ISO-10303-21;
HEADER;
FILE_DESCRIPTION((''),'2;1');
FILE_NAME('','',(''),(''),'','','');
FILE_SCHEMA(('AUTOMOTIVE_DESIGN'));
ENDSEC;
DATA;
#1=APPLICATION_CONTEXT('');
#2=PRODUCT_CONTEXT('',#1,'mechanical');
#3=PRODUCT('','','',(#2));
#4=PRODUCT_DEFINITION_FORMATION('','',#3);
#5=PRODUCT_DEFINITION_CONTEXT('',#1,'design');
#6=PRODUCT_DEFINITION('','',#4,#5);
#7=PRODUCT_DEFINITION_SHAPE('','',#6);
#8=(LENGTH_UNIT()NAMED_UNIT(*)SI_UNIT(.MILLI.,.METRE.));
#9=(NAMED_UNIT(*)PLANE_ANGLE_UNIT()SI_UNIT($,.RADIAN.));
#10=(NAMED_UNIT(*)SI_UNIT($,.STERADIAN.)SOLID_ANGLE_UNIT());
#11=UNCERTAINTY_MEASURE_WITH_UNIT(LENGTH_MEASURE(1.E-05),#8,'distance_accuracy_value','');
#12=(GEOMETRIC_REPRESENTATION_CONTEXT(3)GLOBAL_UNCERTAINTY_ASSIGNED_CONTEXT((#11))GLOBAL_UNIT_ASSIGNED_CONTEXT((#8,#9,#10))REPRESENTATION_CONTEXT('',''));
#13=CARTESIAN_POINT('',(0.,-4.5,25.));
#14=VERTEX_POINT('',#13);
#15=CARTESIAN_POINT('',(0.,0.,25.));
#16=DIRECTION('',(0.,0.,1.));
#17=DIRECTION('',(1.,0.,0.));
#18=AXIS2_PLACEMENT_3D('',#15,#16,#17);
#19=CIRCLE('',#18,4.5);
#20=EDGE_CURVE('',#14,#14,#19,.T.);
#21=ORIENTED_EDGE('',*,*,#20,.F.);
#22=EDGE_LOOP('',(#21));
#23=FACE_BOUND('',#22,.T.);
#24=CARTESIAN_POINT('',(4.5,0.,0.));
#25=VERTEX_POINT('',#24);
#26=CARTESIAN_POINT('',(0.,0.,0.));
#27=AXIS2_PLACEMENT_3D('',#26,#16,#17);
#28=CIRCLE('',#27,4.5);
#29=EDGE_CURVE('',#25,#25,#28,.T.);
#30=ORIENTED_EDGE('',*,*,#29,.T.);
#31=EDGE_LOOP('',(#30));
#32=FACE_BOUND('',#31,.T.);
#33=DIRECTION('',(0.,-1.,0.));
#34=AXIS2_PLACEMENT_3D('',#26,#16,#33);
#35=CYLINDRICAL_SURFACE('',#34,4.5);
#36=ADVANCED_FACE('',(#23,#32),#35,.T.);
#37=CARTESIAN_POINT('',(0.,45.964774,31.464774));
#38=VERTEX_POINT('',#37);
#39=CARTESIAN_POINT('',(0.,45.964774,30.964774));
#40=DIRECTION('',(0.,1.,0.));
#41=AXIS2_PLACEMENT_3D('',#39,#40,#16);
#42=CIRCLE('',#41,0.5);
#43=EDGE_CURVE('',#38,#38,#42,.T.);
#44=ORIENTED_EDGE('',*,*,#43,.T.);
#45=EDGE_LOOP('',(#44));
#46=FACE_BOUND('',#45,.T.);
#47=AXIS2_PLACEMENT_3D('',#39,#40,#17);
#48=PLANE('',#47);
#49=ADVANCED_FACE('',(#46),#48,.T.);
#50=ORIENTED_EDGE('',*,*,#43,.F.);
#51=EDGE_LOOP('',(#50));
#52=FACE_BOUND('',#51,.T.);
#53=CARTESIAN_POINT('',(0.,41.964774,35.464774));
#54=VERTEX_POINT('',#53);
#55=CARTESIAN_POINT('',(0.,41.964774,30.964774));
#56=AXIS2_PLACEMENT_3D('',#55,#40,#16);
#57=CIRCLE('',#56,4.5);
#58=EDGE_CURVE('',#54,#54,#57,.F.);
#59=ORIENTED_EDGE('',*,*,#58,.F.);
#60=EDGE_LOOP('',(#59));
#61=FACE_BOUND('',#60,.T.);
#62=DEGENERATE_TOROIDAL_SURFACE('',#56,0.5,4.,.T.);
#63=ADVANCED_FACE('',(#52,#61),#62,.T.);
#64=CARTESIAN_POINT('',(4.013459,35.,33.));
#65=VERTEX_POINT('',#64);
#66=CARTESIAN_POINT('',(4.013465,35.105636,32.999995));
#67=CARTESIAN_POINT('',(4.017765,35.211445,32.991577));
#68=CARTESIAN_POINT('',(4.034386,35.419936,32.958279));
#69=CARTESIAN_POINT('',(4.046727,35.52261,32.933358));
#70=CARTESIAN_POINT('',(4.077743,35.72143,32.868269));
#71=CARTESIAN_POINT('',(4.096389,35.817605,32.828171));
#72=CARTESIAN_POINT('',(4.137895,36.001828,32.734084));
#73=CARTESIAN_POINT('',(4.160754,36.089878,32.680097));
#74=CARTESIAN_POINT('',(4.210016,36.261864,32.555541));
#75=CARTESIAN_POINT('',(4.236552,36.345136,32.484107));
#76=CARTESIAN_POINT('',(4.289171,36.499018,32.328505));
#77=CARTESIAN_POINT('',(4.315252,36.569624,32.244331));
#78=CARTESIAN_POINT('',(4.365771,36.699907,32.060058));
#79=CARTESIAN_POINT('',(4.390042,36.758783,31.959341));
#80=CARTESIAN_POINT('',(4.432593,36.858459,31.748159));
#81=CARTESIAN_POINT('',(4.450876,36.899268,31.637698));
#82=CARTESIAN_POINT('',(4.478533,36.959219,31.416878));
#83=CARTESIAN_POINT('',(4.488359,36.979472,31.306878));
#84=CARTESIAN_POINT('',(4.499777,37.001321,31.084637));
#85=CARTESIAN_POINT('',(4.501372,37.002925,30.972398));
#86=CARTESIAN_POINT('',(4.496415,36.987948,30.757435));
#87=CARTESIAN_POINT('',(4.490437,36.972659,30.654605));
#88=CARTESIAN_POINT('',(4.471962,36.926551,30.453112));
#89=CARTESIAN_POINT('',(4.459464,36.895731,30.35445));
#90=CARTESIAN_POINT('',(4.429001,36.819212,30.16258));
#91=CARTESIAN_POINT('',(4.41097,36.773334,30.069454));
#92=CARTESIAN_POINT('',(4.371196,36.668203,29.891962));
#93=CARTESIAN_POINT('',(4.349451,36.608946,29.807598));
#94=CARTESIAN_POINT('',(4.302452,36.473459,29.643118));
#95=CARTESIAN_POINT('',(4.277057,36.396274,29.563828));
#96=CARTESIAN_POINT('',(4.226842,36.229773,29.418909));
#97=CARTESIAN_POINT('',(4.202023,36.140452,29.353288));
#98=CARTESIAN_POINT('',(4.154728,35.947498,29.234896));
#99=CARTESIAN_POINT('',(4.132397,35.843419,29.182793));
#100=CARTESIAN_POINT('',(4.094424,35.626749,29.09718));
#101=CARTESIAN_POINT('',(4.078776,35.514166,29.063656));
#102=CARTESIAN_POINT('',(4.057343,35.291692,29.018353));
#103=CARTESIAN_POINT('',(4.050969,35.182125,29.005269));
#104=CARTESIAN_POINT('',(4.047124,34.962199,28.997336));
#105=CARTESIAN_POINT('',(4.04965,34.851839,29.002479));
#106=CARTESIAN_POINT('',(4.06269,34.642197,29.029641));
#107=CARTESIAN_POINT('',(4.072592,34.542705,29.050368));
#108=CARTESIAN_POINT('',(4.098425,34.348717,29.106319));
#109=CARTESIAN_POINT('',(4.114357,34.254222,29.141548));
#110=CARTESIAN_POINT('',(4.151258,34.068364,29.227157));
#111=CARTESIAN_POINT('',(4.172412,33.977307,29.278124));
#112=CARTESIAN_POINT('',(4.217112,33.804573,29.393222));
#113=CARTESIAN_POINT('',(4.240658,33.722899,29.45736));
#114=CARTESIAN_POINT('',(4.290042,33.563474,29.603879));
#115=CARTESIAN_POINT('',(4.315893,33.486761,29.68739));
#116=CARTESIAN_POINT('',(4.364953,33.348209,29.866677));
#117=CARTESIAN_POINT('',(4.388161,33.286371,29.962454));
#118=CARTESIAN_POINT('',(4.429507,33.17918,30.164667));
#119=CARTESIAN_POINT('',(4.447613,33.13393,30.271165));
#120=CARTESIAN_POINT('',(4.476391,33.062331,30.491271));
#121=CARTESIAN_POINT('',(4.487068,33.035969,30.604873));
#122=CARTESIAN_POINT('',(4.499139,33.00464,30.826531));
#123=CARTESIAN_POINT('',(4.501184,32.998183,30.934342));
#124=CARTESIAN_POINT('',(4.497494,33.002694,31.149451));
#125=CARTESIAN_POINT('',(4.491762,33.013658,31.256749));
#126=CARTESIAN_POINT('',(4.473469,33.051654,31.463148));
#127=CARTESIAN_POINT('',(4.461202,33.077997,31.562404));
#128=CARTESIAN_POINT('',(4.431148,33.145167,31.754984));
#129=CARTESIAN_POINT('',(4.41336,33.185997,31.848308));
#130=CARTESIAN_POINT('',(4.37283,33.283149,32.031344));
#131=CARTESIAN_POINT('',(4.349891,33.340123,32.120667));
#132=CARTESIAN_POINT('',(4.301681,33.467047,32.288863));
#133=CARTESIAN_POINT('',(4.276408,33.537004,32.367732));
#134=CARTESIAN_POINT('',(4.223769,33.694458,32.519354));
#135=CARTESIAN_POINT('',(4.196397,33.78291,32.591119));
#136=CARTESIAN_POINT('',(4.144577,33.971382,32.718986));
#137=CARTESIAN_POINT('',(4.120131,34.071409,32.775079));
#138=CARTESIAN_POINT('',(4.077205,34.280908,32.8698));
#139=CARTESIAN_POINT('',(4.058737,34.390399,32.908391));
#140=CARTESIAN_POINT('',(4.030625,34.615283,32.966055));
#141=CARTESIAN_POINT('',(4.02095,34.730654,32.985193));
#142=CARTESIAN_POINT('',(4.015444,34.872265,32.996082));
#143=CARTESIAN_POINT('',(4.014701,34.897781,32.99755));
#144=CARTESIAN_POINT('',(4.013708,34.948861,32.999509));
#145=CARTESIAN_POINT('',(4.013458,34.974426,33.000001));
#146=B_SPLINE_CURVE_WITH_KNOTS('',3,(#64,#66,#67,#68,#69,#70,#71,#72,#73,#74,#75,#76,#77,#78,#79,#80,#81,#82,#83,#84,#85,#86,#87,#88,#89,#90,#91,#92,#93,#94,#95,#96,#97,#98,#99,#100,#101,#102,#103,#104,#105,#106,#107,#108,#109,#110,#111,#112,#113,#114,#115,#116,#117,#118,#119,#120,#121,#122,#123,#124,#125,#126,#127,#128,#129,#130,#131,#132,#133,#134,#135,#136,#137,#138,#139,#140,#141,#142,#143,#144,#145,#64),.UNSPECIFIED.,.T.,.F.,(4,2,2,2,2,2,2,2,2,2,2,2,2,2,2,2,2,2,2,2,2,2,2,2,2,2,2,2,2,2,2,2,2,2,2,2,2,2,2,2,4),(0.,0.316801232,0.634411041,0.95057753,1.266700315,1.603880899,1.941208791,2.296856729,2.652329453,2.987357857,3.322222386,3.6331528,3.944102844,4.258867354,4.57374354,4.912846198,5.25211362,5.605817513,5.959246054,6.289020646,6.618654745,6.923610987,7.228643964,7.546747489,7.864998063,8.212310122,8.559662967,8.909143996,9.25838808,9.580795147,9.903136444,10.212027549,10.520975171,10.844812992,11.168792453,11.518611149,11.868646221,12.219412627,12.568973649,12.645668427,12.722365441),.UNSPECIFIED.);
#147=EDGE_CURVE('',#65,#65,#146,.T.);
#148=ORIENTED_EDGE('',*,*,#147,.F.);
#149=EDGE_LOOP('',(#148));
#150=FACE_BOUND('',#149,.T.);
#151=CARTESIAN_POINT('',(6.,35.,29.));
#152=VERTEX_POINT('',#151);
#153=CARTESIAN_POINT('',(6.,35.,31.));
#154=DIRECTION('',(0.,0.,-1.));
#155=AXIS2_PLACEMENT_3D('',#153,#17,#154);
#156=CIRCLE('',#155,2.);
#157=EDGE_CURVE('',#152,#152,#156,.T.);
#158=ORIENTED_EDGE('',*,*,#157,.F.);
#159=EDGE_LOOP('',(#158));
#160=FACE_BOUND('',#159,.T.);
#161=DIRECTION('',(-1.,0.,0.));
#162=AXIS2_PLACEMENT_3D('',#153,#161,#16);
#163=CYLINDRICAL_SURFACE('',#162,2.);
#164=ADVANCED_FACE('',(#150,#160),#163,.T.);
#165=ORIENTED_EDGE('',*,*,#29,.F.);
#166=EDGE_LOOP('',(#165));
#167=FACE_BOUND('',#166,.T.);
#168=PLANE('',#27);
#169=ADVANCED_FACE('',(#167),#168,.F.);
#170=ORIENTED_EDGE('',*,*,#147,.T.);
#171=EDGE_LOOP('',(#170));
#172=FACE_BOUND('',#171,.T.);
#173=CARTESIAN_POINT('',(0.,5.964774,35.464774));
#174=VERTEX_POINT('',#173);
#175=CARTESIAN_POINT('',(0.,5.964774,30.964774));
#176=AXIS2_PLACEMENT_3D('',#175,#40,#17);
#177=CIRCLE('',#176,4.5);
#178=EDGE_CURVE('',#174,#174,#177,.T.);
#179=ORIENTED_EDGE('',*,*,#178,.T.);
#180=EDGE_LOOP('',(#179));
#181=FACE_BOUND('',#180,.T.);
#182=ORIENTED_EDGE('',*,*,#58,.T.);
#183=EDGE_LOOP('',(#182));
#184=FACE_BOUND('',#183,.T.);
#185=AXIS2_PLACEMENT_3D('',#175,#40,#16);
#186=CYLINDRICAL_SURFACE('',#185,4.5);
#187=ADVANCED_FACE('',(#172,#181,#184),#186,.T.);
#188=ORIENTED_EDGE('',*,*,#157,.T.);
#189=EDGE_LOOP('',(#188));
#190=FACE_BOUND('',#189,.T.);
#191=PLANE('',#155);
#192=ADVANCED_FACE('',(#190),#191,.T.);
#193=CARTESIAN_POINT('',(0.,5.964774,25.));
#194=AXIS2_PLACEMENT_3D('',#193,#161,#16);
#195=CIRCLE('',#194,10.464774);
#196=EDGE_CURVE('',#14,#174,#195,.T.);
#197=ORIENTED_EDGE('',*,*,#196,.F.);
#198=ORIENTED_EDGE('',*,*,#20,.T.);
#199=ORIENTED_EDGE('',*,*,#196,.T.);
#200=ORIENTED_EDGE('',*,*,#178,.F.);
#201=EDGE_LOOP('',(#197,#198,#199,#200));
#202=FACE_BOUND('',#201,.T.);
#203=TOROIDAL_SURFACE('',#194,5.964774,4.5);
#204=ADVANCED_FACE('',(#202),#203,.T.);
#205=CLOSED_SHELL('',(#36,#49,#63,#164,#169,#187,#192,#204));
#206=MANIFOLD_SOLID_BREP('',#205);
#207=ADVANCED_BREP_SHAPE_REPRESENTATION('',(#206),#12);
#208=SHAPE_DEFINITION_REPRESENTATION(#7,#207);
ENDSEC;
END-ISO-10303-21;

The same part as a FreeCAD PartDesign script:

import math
import FreeCAD as App
import Part
import Sketcher

V = App.Vector
Q = App.Units.Quantity


def edges_at(feature, points):
    """Names of the edges that pass closest to the given points."""
    edges = feature.Shape.Edges
    near = lambda p: min(range(len(edges)), key=lambda i: edges[i].distToShape(Part.Vertex(*p))[0])
    return sorted({f"Edge{near(p) + 1}" for p in points})

doc = App.newDocument("Part")
body = doc.addObject("PartDesign::Body", "Body")

# Sketch on XY plane
sketch1 = body.newObject("Sketcher::SketchObject", "Sketch")
sketch1.AttachmentSupport = (doc.getObject("XY_Plane"), [""])
sketch1.MapMode = "FlatFace"
sketch1.addGeometry(Part.Circle(V(0, 0, 0), V(0, 0, 1), 4.5), False)
sketch1.addConstraint(Sketcher.Constraint("Coincident", 0, 3, -1, 1))
sketch1.addConstraint(Sketcher.Constraint("Diameter", 0, Q("9 mm")))

# Sketch on YZ plane
sketch2 = body.newObject("Sketcher::SketchObject", "Sketch001")
sketch2.AttachmentSupport = (doc.getObject("YZ_Plane"), [""])
sketch2.MapMode = "FlatFace"
sketch2.addGeometry(Part.LineSegment(V(0, 0, 0), V(0, 25, 0)), False)
sketch2.addGeometry(Part.ArcOfCircle(Part.Circle(V(6, 25, 0), V(0, 0, 1), 6), math.radians(90), math.radians(180)), False)
sketch2.addGeometry(Part.LineSegment(V(6, 31, 0), V(46, 31, 0)), False)
sketch2.addConstraint(Sketcher.Constraint("Tangent", 0, 2, 1, 2))
sketch2.addConstraint(Sketcher.Constraint("Tangent", 1, 1, 2, 1))
sketch2.addConstraint(Sketcher.Constraint("Vertical", 0))
sketch2.addConstraint(Sketcher.Constraint("Horizontal", 2))
sketch2.addConstraint(Sketcher.Constraint("Coincident", 0, 1, -1, 1))
sketch2.addConstraint(Sketcher.Constraint("DistanceX", 2, 1, 2, 2, Q("40 mm")))
sketch2.addConstraint(Sketcher.Constraint("DistanceY", 0, 1, 0, 2, Q("25 mm")))
sketch2.addConstraint(Sketcher.Constraint("Radius", 1, Q("5.964774 mm")))
doc.recompute()

additivepipe = body.newObject("PartDesign::AdditivePipe", "AdditivePipe")
additivepipe.Profile = sketch1
additivepipe.Spine = (sketch2, ["Edge1", "Edge2", "Edge3"])
doc.recompute()

fillet = body.newObject("PartDesign::Fillet", "Fillet")
fillet.Base = (additivepipe, edges_at(additivepipe, [(-4.5, 45.965, 30.965)]))
fillet.Radius = 4

# Sketch on YZ plane
sketch3 = body.newObject("Sketcher::SketchObject", "Sketch002")
sketch3.AttachmentSupport = (doc.getObject("YZ_Plane"), [""])
sketch3.MapMode = "FlatFace"
sketch3.addGeometry(Part.Circle(V(35, 31, 0), V(0, 0, 1), 2), False)
sketch3.addConstraint(Sketcher.Constraint("Diameter", 0, Q("4 mm")))
sketch3.addConstraint(Sketcher.Constraint("DistanceX", -1, 1, 0, 3, Q("35 mm")))
sketch3.addConstraint(Sketcher.Constraint("DistanceY", -1, 1, 0, 3, Q("31 mm")))
pad1 = body.newObject("PartDesign::Pad", "Pad")
pad1.Profile = sketch3
pad1.Length = 6

doc.recompute()
